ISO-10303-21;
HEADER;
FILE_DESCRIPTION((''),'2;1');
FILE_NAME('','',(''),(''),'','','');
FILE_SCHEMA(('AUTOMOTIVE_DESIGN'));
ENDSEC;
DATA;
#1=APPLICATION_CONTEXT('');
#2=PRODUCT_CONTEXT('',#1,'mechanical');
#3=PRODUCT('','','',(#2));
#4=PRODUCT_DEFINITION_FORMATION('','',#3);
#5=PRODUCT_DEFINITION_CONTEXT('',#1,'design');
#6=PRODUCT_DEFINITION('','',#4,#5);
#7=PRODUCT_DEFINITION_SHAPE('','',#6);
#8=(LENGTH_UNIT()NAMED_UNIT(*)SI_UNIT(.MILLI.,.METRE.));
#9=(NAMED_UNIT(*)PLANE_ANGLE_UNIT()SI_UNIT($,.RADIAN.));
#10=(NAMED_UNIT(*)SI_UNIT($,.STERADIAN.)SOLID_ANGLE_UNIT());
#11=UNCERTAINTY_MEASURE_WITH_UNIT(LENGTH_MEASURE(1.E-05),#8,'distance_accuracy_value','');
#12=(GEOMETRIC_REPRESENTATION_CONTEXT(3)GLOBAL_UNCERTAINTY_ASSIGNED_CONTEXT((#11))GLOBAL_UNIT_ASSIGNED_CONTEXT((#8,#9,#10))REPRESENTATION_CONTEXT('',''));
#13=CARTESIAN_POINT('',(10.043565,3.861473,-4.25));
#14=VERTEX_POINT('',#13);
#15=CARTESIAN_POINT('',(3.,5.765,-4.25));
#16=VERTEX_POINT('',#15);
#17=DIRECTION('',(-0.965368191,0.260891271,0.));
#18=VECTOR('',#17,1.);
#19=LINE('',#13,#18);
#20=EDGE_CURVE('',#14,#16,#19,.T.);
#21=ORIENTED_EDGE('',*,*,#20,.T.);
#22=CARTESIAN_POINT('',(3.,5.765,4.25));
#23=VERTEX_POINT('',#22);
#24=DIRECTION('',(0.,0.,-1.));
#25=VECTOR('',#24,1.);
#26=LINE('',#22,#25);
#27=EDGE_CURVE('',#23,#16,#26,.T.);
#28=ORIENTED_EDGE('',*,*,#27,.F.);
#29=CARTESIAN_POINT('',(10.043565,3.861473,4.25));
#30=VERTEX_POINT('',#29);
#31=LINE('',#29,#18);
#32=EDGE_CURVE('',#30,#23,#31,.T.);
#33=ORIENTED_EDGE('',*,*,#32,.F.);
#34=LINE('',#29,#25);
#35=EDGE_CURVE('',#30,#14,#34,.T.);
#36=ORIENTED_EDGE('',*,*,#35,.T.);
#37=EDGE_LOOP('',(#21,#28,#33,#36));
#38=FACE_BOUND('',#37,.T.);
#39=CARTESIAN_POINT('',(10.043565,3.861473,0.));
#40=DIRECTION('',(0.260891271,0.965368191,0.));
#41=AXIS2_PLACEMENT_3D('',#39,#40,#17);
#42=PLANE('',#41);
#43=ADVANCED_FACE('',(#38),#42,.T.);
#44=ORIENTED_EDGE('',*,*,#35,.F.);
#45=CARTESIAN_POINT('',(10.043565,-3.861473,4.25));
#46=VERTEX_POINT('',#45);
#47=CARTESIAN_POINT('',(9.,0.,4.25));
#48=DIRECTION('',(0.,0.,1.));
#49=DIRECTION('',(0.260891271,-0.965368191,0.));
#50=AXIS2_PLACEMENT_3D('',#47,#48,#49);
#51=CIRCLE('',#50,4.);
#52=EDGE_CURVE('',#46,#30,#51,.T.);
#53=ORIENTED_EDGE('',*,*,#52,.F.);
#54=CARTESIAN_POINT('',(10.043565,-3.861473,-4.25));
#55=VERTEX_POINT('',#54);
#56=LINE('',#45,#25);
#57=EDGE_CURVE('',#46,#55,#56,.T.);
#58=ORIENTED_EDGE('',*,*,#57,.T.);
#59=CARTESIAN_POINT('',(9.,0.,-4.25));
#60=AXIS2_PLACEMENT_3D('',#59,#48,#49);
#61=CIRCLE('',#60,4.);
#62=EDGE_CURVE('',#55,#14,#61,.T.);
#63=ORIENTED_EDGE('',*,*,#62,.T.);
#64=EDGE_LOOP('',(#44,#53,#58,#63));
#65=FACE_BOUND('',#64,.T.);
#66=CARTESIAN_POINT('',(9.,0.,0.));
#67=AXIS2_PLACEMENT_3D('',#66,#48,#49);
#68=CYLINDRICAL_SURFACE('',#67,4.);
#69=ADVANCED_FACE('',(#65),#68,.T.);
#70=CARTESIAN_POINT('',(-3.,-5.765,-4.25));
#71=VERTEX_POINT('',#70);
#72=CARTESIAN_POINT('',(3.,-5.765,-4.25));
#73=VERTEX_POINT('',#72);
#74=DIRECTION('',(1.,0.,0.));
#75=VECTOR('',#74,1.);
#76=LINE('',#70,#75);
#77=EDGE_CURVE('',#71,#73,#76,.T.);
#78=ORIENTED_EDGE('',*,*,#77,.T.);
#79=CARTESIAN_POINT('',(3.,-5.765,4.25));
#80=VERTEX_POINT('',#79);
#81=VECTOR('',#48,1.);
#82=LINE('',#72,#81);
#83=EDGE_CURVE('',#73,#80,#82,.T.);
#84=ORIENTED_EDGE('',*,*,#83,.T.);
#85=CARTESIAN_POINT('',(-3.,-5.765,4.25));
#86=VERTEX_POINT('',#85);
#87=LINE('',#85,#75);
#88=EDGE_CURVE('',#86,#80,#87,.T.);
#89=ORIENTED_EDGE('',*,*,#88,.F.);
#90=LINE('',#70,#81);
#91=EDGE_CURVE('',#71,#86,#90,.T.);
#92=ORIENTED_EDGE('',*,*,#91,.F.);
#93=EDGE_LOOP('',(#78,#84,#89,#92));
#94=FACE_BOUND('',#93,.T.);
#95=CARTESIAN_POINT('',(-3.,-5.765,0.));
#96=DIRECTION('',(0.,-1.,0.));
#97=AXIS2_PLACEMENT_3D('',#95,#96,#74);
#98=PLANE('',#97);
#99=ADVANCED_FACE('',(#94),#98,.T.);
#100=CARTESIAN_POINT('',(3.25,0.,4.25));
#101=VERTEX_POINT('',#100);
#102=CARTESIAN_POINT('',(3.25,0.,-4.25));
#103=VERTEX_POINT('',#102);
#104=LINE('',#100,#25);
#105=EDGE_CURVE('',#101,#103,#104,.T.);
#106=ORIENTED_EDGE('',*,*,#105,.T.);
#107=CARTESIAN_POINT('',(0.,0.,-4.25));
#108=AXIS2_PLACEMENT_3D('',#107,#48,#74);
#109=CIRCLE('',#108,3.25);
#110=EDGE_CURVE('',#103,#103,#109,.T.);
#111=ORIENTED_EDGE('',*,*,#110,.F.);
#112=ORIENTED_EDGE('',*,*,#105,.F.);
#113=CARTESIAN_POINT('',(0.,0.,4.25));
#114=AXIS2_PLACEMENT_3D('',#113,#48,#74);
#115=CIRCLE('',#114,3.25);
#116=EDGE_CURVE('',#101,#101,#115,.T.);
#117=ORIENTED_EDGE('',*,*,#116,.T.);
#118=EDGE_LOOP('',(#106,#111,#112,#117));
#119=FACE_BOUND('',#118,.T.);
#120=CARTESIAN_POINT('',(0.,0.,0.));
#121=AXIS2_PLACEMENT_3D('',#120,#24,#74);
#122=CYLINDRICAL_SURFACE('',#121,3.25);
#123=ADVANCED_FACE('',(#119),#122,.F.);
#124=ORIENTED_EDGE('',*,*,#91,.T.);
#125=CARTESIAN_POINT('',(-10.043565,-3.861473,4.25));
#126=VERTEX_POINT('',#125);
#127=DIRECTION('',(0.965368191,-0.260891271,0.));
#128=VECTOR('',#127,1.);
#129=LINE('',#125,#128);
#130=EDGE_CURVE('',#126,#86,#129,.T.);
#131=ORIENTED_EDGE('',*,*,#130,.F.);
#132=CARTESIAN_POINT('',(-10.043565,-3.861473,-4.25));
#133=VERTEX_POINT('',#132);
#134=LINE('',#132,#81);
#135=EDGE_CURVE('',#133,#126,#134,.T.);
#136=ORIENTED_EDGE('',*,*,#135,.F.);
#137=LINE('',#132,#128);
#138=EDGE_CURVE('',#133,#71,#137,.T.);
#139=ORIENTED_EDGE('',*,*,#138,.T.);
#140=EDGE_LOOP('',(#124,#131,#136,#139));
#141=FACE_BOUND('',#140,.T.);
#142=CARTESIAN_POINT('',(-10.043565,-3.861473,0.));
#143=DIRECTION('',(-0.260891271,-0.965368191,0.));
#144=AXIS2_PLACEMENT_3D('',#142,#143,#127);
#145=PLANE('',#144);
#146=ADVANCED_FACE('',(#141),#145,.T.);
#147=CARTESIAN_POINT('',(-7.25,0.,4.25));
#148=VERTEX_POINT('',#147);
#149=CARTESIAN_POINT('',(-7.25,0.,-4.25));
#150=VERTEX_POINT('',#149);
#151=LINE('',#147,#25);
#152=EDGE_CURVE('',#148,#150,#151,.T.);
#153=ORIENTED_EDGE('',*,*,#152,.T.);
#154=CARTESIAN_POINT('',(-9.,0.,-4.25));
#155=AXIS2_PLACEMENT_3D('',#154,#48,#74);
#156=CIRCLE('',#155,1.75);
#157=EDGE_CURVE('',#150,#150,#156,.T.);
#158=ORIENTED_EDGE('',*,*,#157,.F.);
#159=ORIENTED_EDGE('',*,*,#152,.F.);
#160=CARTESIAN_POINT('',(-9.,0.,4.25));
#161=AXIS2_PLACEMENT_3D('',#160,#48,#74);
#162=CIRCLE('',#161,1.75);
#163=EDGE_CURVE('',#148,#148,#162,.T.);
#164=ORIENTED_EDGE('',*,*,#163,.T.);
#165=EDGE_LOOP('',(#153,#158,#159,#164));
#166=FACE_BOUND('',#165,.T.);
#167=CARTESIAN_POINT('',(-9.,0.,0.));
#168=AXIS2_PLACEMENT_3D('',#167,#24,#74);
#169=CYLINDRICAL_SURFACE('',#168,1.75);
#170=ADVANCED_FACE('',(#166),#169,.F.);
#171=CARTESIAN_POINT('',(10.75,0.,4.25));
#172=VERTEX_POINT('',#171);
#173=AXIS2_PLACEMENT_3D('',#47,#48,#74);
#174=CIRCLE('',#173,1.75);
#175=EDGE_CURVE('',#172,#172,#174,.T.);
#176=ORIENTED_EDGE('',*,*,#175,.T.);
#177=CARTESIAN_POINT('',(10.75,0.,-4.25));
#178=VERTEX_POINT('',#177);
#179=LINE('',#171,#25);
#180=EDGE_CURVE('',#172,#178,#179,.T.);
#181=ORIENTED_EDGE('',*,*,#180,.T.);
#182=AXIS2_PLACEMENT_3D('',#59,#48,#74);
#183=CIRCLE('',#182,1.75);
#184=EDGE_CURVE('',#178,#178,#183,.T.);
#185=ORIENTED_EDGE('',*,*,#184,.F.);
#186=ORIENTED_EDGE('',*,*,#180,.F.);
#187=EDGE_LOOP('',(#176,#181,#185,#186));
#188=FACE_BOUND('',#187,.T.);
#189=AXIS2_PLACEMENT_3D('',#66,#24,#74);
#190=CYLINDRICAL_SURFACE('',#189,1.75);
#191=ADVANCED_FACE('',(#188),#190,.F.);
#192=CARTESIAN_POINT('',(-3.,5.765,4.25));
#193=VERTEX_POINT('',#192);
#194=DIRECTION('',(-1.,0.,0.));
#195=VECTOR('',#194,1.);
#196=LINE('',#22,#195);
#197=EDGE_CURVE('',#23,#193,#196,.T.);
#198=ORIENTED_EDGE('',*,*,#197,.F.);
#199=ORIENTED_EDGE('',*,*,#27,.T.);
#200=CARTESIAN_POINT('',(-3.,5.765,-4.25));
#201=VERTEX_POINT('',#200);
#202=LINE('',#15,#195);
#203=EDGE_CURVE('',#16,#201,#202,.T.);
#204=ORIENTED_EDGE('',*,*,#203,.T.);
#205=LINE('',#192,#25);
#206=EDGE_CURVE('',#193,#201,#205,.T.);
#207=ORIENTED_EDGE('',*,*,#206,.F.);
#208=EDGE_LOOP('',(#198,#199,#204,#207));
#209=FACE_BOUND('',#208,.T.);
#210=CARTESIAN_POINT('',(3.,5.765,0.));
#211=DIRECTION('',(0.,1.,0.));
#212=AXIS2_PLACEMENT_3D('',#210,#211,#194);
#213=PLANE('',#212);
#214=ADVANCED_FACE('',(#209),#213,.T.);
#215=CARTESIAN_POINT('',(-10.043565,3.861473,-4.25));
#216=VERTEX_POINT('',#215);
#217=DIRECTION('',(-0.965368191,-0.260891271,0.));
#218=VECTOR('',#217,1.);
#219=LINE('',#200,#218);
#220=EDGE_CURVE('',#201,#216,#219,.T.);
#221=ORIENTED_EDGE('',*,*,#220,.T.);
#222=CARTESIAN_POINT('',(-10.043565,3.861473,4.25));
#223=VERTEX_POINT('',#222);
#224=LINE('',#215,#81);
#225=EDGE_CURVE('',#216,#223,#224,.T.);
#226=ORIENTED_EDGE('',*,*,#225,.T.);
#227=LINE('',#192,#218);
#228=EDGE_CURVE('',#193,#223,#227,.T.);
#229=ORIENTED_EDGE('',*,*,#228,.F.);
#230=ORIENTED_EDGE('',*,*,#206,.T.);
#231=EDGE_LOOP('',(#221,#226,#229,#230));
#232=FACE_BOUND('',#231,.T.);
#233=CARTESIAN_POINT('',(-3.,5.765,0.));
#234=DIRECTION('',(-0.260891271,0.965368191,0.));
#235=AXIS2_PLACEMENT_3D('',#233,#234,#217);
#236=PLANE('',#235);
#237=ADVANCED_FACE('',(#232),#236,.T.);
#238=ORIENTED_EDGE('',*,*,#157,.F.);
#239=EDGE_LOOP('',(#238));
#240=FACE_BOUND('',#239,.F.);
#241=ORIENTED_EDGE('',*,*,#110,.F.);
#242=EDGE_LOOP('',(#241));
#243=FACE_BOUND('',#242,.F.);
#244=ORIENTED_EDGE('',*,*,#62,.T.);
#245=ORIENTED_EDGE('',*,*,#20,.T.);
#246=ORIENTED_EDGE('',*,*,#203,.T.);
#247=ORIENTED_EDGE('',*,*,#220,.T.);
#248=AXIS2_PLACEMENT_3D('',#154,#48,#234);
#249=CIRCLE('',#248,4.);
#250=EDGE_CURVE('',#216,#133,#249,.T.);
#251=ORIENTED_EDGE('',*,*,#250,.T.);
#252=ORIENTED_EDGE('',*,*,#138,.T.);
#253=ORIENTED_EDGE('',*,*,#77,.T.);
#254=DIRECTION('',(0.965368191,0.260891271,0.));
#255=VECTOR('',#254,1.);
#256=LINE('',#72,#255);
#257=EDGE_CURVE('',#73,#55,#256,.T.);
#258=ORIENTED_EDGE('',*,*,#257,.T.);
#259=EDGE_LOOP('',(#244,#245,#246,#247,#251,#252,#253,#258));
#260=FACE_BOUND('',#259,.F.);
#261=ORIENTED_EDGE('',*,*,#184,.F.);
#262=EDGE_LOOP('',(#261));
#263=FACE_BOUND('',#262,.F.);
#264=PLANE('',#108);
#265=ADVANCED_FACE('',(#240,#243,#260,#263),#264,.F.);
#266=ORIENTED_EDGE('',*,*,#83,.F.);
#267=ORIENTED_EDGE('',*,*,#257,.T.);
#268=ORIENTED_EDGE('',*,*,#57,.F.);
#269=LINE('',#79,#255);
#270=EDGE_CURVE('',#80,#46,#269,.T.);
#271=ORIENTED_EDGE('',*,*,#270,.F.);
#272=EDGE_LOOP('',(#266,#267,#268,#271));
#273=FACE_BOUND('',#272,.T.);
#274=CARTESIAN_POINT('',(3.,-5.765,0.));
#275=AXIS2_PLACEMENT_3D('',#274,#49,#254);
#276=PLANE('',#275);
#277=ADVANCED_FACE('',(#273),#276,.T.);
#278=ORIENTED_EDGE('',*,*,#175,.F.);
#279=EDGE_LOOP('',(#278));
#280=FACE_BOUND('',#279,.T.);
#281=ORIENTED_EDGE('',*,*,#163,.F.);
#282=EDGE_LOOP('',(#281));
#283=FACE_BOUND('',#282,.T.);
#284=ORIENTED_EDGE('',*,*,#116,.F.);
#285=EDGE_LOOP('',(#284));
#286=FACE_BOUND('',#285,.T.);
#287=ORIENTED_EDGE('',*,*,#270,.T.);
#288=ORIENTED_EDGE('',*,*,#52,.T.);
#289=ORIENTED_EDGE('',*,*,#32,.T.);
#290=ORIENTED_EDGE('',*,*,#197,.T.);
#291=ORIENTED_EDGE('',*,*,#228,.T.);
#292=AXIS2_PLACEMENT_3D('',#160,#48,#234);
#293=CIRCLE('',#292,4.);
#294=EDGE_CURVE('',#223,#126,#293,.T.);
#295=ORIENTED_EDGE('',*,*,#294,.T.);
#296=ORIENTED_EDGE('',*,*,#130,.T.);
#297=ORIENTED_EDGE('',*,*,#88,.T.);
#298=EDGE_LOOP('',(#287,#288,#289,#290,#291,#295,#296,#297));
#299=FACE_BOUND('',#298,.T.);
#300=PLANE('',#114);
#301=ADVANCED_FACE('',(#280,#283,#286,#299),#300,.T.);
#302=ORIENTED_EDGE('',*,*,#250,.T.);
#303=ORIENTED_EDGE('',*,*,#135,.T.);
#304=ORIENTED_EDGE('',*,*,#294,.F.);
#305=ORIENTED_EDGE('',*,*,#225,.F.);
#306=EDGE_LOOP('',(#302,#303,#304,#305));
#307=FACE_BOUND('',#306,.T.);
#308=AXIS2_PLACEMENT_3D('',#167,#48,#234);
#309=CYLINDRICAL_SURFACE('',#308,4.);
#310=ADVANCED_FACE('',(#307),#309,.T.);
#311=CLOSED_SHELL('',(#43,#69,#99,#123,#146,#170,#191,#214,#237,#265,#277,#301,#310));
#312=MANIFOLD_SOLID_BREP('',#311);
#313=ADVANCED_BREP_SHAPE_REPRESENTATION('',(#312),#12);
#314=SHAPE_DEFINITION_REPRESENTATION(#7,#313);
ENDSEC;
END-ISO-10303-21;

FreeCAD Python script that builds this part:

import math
import FreeCAD as App
import Part
import Sketcher
Q = App.Units.Quantity

doc = App.newDocument("Part")
body = doc.addObject("PartDesign::Body", "Body")

# Sketch on XY plane
sketch1 = doc.addObject("Sketcher::SketchObject", "Sketch")
body.addObject(sketch1)
sketch1.AttachmentSupport = (doc.XY_Plane, [""])
sketch1.MapMode = "FlatFace"
sketch1.addGeometry([
    Part.LineSegment(App.Vector(-3, 5.8, 0), App.Vector(-10, 3.9, 0)),  # 0
    Part.ArcOfCircle(Part.Circle(App.Vector(-9, 0, 0), App.Vector(0, 0, 1), 4), math.radians(105), math.radians(255)),  # 1
    Part.LineSegment(App.Vector(-10, -3.9, 0), App.Vector(-3, -5.8, 0)),  # 2
    Part.LineSegment(App.Vector(-3, -5.8, 0), App.Vector(3, -5.8, 0)),  # 3
    Part.LineSegment(App.Vector(3, -5.8, 0), App.Vector(10, -3.9, 0)),  # 4
    Part.ArcOfCircle(Part.Circle(App.Vector(9, 0, 0), App.Vector(0, 0, 1), 4), math.radians(-75), math.radians(75)),  # 5
    Part.LineSegment(App.Vector(10, 3.9, 0), App.Vector(3, 5.8, 0)),  # 6
    Part.LineSegment(App.Vector(3, 5.8, 0), App.Vector(-3, 5.8, 0)),  # 7
    Part.Circle(App.Vector(-9, 0, 0), App.Vector(0, 0, 1), 1.8),  # 8
    Part.Circle(App.Vector(0, 0, 0), App.Vector(0, 0, 1), 3.2),  # 9
    Part.Circle(App.Vector(9, 0, 0), App.Vector(0, 0, 1), 1.8),  # 10
], False)
sketch1.addConstraint([
    Sketcher.Constraint("Tangent", 0, 2, 1, 1),
    Sketcher.Constraint("Tangent", 1, 2, 2, 1),
    Sketcher.Constraint("Coincident", 2, 2, 3, 1),
    Sketcher.Constraint("Coincident", 3, 2, 4, 1),
    Sketcher.Constraint("Tangent", 4, 2, 5, 1),
    Sketcher.Constraint("Tangent", 5, 2, 6, 1),
    Sketcher.Constraint("Coincident", 6, 2, 7, 1),
    Sketcher.Constraint("Coincident", 7, 2, 0, 1),
    Sketcher.Constraint("Horizontal", 3),
    Sketcher.Constraint("Horizontal", 7),
    Sketcher.Constraint("Coincident", 9, 3, -1, 1),
    Sketcher.Constraint("Coincident", 8, 3, 1, 3),
    Sketcher.Constraint("Coincident", 10, 3, 5, 3),
    Sketcher.Constraint("Equal", 1, 5),
    Sketcher.Constraint("Equal", 8, 10),
    Sketcher.Constraint("Symmetric", 1, 3, 5, 3, -1, 1),
    Sketcher.Constraint("Symmetric", 2, 2, 6, 2, -1, 1),
    Sketcher.Constraint("Symmetric", 1, 2, 4, 2, -2),
    Sketcher.Constraint("Parallel", 0, 4),
    Sketcher.Constraint("Radius", 1, Q("4 mm")),
    Sketcher.Constraint("Diameter", 8, Q("3.5 mm")),
    Sketcher.Constraint("Diameter", 9, Q("6.5 mm")),
    Sketcher.Constraint("DistanceX", 3, 1, 3, 2, Q("6 mm")),
    Sketcher.Constraint("DistanceX", 1, 3, -1, 1, Q("9 mm")),
    Sketcher.Constraint("DistanceY", 3, 2, 6, 2, Q("11.53 mm")),
])
pad1 = doc.addObject("PartDesign::Pad", "Pad")
body.addObject(pad1)
pad1.Profile = sketch1
pad1.Length = 8.5
pad1.Midplane = True

doc.recompute()
